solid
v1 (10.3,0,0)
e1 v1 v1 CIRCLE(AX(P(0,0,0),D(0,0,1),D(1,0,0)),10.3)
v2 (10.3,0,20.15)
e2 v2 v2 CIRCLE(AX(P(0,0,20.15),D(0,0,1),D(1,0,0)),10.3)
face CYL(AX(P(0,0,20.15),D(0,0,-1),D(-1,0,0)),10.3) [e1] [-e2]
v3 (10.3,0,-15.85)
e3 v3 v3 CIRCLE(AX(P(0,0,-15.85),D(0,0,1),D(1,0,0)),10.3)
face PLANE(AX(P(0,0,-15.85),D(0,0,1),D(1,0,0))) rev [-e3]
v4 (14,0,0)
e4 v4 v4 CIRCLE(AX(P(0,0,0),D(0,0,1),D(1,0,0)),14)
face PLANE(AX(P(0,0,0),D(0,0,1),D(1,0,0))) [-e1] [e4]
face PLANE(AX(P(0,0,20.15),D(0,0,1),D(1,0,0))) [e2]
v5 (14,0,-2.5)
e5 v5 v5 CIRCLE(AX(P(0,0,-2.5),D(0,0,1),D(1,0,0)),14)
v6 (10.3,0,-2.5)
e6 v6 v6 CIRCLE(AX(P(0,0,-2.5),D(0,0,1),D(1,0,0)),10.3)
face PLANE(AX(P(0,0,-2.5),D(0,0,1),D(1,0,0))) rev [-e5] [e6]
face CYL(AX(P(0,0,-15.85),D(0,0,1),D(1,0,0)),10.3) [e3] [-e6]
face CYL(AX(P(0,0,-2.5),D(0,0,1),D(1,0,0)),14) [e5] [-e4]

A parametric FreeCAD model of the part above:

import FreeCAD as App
import Part
import Sketcher
from FreeCAD import Vector
Q = App.Units.Quantity

doc = App.newDocument("Part")
body = doc.addObject("PartDesign::Body", "Body")

# Sketch on XY plane
sketch1 = body.newObject("Sketcher::SketchObject", "Sketch")
sketch1.AttachmentSupport = (doc.getObject("XY_Plane"), [""])
sketch1.MapMode = "FlatFace"
sketch1.addGeometry(Part.Circle(Vector(0, 0, 0), Vector(0, 0, 1), 10.3), False)
sketch1.addConstraint(Sketcher.Constraint("Coincident", 0, 3, -1, 1))
sketch1.addConstraint(Sketcher.Constraint("Diameter", 0, Q("20.6 mm")))
pad1 = body.newObject("PartDesign::Pad", "Pad")
pad1.Profile = sketch1
pad1.Length = 20.15

# Sketch on XY plane
sketch2 = body.newObject("Sketcher::SketchObject", "Sketch001")
sketch2.AttachmentSupport = (doc.getObject("XY_Plane"), [""])
sketch2.MapMode = "FlatFace"
sketch2.AttachmentOffset = App.Placement(Vector(0, 0, -2.5), App.Rotation())
sketch2.addGeometry(Part.Circle(Vector(0, 0, 0), Vector(0, 0, 1), 14), False)
sketch2.addConstraint(Sketcher.Constraint("Coincident", 0, 3, -1, 1))
sketch2.addConstraint(Sketcher.Constraint("Diameter", 0, Q("28 mm")))
pad2 = body.newObject("PartDesign::Pad", "Pad001")
pad2.Profile = sketch2
pad2.Length = 2.5

# Sketch on XY plane
sketch3 = body.newObject("Sketcher::SketchObject", "Sketch002")
sketch3.AttachmentSupport = (doc.getObject("XY_Plane"), [""])
sketch3.MapMode = "FlatFace"
sketch3.AttachmentOffset = App.Placement(Vector(0, 0, -15.85), App.Rotation())
sketch3.addGeometry(Part.Circle(Vector(0, 0, 0), Vector(0, 0, 1), 10.3), False)
sketch3.addConstraint(Sketcher.Constraint("Coincident", 0, 3, -1, 1))
sketch3.addConstraint(Sketcher.Constraint("Diameter", 0, Q("20.6 mm")))
pad3 = body.newObject("PartDesign::Pad", "Pad002")
pad3.Profile = sketch3
pad3.Length = 15.85

doc.recompute()
